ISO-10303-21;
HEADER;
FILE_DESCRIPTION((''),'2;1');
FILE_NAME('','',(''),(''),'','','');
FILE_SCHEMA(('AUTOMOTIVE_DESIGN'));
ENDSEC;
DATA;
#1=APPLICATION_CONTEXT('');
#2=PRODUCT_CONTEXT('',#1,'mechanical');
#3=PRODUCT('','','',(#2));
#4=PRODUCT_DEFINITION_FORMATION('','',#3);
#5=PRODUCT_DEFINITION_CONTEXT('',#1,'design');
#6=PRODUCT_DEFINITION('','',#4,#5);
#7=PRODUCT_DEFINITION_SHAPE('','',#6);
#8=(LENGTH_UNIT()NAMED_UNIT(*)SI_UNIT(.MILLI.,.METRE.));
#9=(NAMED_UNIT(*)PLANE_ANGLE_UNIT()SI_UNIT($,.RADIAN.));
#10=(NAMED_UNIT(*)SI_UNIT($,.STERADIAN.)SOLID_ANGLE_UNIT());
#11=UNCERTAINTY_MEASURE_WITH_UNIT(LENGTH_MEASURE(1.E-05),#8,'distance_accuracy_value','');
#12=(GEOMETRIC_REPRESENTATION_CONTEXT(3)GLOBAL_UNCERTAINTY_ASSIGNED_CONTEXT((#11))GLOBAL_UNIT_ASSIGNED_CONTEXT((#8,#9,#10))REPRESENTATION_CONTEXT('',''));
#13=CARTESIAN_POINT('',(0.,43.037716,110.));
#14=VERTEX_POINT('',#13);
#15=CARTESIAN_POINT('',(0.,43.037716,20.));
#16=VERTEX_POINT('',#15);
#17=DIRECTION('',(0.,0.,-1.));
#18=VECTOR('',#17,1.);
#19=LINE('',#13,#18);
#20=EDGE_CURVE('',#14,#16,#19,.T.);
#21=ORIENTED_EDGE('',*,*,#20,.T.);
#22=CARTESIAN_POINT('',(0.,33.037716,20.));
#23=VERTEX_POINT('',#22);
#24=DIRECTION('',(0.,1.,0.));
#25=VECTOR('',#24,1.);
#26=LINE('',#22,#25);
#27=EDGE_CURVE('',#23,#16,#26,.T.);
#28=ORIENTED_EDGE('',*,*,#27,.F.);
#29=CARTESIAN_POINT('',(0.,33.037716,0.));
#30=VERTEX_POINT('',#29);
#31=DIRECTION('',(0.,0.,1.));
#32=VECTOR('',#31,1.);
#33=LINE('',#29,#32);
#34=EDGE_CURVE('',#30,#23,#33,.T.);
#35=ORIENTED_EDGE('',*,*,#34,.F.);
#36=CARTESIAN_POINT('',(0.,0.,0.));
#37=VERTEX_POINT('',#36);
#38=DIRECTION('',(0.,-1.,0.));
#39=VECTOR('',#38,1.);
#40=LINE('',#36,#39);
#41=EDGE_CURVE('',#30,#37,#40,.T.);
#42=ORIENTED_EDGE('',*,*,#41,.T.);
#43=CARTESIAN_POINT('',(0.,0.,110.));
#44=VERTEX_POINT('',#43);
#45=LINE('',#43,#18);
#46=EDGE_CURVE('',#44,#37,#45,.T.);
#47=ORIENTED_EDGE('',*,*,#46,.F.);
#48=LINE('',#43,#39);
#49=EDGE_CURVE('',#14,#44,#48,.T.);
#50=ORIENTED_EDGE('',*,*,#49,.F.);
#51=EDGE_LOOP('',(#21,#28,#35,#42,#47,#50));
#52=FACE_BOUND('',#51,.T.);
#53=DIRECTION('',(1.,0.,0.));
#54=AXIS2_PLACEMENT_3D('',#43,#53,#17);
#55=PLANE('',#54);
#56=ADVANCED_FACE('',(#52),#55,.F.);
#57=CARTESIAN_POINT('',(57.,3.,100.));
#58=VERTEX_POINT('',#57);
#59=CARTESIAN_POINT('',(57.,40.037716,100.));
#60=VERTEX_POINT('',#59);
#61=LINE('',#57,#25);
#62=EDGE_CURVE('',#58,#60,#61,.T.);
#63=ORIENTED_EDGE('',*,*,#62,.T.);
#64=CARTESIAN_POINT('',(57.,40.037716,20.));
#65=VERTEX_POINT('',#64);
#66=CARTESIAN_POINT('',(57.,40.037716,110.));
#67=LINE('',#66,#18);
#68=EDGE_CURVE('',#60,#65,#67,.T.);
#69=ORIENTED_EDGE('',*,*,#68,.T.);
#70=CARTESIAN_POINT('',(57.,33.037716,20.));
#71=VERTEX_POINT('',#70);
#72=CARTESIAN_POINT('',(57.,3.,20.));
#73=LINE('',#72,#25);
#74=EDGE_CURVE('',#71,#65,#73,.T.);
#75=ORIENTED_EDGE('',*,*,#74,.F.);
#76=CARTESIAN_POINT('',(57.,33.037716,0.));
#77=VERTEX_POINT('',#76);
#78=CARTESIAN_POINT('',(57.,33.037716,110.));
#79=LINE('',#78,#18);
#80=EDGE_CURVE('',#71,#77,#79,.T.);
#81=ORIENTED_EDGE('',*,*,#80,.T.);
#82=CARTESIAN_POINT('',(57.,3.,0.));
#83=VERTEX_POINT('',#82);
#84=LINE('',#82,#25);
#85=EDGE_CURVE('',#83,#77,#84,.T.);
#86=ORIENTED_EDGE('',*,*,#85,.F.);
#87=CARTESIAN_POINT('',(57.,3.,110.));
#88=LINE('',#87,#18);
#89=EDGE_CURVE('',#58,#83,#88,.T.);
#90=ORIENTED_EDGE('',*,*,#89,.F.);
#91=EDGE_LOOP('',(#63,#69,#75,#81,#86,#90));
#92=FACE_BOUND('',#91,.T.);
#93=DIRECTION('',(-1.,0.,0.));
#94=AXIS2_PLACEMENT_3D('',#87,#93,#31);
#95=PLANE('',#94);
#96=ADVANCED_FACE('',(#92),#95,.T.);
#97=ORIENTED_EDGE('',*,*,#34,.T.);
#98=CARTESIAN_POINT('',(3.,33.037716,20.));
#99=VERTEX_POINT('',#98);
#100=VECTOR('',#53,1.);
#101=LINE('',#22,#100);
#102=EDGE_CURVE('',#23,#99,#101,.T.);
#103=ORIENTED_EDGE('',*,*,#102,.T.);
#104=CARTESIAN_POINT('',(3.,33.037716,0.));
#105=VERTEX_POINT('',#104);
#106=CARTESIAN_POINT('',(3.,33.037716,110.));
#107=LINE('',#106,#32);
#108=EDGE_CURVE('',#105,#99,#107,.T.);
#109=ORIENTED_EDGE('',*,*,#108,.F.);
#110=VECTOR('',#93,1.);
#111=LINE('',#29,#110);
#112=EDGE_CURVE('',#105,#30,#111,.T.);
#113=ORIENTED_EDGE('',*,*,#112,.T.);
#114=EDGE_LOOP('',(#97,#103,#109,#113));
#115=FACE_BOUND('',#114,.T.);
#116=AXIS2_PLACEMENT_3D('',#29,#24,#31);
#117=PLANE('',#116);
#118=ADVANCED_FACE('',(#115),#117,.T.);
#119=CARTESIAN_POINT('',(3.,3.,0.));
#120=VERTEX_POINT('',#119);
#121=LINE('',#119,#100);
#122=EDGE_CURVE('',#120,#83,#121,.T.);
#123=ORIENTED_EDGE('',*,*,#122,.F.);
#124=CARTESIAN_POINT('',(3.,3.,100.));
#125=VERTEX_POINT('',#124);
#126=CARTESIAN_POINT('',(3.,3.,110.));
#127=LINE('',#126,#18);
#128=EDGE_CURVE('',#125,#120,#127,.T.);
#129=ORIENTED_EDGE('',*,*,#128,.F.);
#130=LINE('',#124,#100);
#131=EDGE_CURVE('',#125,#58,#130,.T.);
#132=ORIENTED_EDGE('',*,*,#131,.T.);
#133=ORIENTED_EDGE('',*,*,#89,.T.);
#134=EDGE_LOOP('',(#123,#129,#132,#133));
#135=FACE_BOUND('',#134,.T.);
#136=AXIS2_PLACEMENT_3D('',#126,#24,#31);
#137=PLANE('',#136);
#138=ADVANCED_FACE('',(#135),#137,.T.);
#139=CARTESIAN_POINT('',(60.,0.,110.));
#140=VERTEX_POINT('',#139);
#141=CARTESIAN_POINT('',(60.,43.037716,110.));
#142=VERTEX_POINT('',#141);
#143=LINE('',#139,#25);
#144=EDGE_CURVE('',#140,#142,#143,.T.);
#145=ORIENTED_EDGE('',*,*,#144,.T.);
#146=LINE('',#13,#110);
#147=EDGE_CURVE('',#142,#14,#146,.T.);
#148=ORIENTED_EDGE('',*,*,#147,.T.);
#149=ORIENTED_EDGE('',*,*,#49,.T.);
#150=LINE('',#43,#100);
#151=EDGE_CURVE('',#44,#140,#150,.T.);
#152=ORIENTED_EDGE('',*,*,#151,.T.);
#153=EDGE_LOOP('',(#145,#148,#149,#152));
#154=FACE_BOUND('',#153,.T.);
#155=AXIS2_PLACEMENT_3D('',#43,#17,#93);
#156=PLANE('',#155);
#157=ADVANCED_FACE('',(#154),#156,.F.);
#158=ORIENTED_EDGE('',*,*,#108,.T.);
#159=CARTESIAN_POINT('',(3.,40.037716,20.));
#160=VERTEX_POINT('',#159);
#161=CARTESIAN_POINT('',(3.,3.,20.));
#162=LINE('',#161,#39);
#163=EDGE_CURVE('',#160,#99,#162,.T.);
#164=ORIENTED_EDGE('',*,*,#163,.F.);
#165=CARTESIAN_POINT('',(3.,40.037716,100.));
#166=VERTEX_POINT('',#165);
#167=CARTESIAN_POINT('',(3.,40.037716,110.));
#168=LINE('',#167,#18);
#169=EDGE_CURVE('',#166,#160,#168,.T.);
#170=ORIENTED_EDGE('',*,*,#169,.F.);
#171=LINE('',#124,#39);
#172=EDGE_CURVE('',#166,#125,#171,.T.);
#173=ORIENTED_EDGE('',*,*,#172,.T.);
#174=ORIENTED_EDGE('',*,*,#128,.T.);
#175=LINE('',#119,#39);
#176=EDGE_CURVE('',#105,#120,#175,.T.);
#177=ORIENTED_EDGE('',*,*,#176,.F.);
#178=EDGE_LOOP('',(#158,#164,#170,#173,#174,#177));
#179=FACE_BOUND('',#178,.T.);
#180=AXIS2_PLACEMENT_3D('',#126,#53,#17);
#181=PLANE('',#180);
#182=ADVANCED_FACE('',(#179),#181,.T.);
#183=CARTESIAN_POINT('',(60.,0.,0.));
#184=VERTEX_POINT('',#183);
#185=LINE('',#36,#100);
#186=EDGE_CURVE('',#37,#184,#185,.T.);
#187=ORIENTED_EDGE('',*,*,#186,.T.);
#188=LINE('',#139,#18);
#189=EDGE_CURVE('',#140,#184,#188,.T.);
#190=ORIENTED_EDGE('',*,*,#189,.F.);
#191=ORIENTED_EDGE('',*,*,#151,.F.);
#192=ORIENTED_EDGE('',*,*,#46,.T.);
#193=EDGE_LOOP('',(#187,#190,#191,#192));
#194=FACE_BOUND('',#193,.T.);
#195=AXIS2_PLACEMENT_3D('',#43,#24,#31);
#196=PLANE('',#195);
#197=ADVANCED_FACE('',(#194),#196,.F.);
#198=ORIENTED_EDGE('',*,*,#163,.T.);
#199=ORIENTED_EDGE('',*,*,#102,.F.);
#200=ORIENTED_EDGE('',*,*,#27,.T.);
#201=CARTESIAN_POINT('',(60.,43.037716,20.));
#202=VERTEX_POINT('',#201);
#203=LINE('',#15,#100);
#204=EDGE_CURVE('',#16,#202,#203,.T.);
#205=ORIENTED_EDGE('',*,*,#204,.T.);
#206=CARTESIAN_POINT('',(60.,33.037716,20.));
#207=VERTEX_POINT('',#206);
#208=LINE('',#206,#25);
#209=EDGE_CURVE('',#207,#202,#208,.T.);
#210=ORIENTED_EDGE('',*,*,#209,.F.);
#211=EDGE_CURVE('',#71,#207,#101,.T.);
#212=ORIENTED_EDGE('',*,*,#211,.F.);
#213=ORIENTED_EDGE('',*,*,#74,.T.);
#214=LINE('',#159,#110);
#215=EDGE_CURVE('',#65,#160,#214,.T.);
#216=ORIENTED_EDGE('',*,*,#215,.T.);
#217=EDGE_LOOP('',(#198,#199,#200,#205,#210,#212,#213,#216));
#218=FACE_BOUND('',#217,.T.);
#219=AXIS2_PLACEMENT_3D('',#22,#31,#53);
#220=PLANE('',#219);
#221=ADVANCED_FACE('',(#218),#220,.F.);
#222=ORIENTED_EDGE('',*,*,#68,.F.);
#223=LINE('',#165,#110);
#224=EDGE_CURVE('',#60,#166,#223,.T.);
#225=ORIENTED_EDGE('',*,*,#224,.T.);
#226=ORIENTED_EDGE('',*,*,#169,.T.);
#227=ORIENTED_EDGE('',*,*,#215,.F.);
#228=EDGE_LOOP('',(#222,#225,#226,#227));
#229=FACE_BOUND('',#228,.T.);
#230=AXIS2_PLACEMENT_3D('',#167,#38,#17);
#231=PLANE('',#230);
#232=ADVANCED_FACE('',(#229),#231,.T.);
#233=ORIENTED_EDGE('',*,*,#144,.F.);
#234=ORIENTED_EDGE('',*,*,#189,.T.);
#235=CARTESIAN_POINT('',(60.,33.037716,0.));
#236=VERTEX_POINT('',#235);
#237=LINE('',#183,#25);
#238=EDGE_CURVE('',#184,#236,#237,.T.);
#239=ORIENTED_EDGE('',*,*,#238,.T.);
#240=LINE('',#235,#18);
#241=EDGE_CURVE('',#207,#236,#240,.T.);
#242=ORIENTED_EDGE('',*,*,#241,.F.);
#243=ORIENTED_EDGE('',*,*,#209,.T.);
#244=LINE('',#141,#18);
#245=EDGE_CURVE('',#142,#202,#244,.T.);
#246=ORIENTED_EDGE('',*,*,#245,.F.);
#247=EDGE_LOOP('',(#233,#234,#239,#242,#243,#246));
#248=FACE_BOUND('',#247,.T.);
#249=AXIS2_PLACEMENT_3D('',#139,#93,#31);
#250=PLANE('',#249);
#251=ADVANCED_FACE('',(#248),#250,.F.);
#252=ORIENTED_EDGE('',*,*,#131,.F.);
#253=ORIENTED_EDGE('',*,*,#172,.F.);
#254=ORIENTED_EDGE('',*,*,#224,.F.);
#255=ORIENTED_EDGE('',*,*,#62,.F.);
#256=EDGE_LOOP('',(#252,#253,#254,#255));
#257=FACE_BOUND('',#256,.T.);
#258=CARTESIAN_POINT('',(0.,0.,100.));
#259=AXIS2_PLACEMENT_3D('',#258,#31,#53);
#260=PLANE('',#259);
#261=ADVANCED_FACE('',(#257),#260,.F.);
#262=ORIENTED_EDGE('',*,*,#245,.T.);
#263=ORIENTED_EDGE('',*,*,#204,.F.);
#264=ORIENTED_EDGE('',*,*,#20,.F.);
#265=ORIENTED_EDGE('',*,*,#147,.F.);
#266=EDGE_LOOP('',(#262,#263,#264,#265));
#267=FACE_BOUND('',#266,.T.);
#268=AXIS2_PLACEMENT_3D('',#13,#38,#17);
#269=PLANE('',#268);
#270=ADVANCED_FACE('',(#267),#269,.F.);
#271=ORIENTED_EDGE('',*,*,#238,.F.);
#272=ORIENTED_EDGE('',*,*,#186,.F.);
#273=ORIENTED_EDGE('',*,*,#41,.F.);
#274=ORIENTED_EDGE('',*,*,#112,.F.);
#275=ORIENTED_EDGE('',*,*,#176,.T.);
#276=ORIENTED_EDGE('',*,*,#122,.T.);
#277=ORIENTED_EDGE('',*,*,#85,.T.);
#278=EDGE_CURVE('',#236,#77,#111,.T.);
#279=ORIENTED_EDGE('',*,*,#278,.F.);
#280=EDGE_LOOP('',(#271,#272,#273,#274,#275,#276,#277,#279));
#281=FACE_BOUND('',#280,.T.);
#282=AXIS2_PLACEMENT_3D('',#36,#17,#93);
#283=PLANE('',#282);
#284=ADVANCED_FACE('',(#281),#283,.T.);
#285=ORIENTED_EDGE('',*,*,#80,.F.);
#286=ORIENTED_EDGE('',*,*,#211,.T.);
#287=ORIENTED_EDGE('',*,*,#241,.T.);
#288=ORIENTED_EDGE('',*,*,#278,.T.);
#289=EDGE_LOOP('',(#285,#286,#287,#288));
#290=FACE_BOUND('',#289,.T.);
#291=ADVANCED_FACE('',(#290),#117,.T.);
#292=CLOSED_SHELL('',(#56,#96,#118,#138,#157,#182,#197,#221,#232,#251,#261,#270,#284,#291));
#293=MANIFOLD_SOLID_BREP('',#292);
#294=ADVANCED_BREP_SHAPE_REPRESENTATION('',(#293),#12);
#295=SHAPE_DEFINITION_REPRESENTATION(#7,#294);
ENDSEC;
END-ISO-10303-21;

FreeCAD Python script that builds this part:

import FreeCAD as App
import Part
import Sketcher

V = App.Vector
Q = App.Units.Quantity


def add_polygon(sketch, points):
    """Adds a closed chain of lines whose ends are joined by coincident constraints."""
    first, n = sketch.GeometryCount, len(points)
    for a, b in zip(points, points[1:] + points[:1]):
        sketch.addGeometry(Part.LineSegment(App.Vector(*a, 0), App.Vector(*b, 0)), False)
    for i in range(n):
        sketch.addConstraint(Sketcher.Constraint("Coincident", first + i, 2, first + (i + 1) % n, 1))

doc = App.newDocument("Part")
body = doc.addObject("PartDesign::Body", "Body")

# Sketch on XY plane
sketch1 = body.newObject("Sketcher::SketchObject", "Sketch")
sketch1.AttachmentSupport = (doc.getObject("XY_Plane"), [""])
sketch1.MapMode = "FlatFace"
add_polygon(sketch1, [(0, 43.037716), (0, 0), (60, 0), (60, 43.037716)])  # lines 0-3
add_polygon(sketch1, [(57, 3), (3, 3), (3, 40.037716), (57, 40.037716)])  # lines 4-7
sketch1.addConstraint([
    Sketcher.Constraint("Vertical", 0),
    Sketcher.Constraint("Horizontal", 1),
    Sketcher.Constraint("Vertical", 2),
    Sketcher.Constraint("Horizontal", 3),
    Sketcher.Constraint("Horizontal", 4),
    Sketcher.Constraint("Vertical", 5),
    Sketcher.Constraint("Horizontal", 6),
    Sketcher.Constraint("Vertical", 7),
    Sketcher.Constraint("Coincident", 0, 2, -1, 1),
    Sketcher.Constraint("DistanceX", 1, 1, 1, 2, Q("60 mm")),
    Sketcher.Constraint("DistanceX", 4, 2, 4, 1, Q("54 mm")),
    Sketcher.Constraint("DistanceX", -1, 1, 4, 2, Q("3 mm")),
    Sketcher.Constraint("DistanceY", -1, 1, 4, 2, Q("3 mm")),
    Sketcher.Constraint("DistanceY", 5, 2, 3, 2, Q("3 mm")),
    Sketcher.Constraint("DistanceY", 0, 2, 0, 1, Q("43.037716 mm")),
])
pad1 = body.newObject("PartDesign::Pad", "Pad")
pad1.Profile = sketch1
pad1.Length = 110

# Sketch on XZ plane
sketch2 = body.newObject("Sketcher::SketchObject", "Sketch001")
sketch2.AttachmentSupport = (doc.getObject("XZ_Plane"), [""])
sketch2.MapMode = "FlatFace"
sketch2.AttachmentOffset = App.Placement(V(0, 0, -43.037716), App.Rotation())
add_polygon(sketch2, [(0, 0), (0, 20), (60, 20), (60, 0)])  # lines 0-3
sketch2.addConstraint([
    Sketcher.Constraint("Vertical", 0),
    Sketcher.Constraint("Horizontal", 1),
    Sketcher.Constraint("Vertical", 2),
    Sketcher.Constraint("Horizontal", 3),
    Sketcher.Constraint("Coincident", 3, 2, -1, 1),
    Sketcher.Constraint("DistanceX", 1, 1, 1, 2, Q("60 mm")),
    Sketcher.Constraint("DistanceY", 0, 1, 0, 2, Q("20 mm")),
])
pocket1 = body.newObject("PartDesign::Pocket", "Pocket")
pocket1.Profile = sketch2
pocket1.Length = 10
pocket1.Reversed = True

# Sketch on XY plane
sketch3 = body.newObject("Sketcher::SketchObject", "Sketch002")
sketch3.AttachmentSupport = (doc.getObject("XY_Plane"), [""])
sketch3.MapMode = "FlatFace"
sketch3.AttachmentOffset = App.Placement(V(0, 0, 110), App.Rotation())
add_polygon(sketch3, [(0, 43.037716), (0, 0), (60, 0), (60, 43.037716)])  # lines 0-3
sketch3.addConstraint([
    Sketcher.Constraint("Vertical", 0),
    Sketcher.Constraint("Horizontal", 1),
    Sketcher.Constraint("Vertical", 2),
    Sketcher.Constraint("Horizontal", 3),
    Sketcher.Constraint("Coincident", 0, 2, -1, 1),
    Sketcher.Constraint("DistanceX", 1, 1, 1, 2, Q("60 mm")),
    Sketcher.Constraint("DistanceY", 0, 2, 0, 1, Q("43.037716 mm")),
])
pad2 = body.newObject("PartDesign::Pad", "Pad001")
pad2.Profile = sketch3
pad2.Length = 10
pad2.Reversed = True

doc.recompute()
